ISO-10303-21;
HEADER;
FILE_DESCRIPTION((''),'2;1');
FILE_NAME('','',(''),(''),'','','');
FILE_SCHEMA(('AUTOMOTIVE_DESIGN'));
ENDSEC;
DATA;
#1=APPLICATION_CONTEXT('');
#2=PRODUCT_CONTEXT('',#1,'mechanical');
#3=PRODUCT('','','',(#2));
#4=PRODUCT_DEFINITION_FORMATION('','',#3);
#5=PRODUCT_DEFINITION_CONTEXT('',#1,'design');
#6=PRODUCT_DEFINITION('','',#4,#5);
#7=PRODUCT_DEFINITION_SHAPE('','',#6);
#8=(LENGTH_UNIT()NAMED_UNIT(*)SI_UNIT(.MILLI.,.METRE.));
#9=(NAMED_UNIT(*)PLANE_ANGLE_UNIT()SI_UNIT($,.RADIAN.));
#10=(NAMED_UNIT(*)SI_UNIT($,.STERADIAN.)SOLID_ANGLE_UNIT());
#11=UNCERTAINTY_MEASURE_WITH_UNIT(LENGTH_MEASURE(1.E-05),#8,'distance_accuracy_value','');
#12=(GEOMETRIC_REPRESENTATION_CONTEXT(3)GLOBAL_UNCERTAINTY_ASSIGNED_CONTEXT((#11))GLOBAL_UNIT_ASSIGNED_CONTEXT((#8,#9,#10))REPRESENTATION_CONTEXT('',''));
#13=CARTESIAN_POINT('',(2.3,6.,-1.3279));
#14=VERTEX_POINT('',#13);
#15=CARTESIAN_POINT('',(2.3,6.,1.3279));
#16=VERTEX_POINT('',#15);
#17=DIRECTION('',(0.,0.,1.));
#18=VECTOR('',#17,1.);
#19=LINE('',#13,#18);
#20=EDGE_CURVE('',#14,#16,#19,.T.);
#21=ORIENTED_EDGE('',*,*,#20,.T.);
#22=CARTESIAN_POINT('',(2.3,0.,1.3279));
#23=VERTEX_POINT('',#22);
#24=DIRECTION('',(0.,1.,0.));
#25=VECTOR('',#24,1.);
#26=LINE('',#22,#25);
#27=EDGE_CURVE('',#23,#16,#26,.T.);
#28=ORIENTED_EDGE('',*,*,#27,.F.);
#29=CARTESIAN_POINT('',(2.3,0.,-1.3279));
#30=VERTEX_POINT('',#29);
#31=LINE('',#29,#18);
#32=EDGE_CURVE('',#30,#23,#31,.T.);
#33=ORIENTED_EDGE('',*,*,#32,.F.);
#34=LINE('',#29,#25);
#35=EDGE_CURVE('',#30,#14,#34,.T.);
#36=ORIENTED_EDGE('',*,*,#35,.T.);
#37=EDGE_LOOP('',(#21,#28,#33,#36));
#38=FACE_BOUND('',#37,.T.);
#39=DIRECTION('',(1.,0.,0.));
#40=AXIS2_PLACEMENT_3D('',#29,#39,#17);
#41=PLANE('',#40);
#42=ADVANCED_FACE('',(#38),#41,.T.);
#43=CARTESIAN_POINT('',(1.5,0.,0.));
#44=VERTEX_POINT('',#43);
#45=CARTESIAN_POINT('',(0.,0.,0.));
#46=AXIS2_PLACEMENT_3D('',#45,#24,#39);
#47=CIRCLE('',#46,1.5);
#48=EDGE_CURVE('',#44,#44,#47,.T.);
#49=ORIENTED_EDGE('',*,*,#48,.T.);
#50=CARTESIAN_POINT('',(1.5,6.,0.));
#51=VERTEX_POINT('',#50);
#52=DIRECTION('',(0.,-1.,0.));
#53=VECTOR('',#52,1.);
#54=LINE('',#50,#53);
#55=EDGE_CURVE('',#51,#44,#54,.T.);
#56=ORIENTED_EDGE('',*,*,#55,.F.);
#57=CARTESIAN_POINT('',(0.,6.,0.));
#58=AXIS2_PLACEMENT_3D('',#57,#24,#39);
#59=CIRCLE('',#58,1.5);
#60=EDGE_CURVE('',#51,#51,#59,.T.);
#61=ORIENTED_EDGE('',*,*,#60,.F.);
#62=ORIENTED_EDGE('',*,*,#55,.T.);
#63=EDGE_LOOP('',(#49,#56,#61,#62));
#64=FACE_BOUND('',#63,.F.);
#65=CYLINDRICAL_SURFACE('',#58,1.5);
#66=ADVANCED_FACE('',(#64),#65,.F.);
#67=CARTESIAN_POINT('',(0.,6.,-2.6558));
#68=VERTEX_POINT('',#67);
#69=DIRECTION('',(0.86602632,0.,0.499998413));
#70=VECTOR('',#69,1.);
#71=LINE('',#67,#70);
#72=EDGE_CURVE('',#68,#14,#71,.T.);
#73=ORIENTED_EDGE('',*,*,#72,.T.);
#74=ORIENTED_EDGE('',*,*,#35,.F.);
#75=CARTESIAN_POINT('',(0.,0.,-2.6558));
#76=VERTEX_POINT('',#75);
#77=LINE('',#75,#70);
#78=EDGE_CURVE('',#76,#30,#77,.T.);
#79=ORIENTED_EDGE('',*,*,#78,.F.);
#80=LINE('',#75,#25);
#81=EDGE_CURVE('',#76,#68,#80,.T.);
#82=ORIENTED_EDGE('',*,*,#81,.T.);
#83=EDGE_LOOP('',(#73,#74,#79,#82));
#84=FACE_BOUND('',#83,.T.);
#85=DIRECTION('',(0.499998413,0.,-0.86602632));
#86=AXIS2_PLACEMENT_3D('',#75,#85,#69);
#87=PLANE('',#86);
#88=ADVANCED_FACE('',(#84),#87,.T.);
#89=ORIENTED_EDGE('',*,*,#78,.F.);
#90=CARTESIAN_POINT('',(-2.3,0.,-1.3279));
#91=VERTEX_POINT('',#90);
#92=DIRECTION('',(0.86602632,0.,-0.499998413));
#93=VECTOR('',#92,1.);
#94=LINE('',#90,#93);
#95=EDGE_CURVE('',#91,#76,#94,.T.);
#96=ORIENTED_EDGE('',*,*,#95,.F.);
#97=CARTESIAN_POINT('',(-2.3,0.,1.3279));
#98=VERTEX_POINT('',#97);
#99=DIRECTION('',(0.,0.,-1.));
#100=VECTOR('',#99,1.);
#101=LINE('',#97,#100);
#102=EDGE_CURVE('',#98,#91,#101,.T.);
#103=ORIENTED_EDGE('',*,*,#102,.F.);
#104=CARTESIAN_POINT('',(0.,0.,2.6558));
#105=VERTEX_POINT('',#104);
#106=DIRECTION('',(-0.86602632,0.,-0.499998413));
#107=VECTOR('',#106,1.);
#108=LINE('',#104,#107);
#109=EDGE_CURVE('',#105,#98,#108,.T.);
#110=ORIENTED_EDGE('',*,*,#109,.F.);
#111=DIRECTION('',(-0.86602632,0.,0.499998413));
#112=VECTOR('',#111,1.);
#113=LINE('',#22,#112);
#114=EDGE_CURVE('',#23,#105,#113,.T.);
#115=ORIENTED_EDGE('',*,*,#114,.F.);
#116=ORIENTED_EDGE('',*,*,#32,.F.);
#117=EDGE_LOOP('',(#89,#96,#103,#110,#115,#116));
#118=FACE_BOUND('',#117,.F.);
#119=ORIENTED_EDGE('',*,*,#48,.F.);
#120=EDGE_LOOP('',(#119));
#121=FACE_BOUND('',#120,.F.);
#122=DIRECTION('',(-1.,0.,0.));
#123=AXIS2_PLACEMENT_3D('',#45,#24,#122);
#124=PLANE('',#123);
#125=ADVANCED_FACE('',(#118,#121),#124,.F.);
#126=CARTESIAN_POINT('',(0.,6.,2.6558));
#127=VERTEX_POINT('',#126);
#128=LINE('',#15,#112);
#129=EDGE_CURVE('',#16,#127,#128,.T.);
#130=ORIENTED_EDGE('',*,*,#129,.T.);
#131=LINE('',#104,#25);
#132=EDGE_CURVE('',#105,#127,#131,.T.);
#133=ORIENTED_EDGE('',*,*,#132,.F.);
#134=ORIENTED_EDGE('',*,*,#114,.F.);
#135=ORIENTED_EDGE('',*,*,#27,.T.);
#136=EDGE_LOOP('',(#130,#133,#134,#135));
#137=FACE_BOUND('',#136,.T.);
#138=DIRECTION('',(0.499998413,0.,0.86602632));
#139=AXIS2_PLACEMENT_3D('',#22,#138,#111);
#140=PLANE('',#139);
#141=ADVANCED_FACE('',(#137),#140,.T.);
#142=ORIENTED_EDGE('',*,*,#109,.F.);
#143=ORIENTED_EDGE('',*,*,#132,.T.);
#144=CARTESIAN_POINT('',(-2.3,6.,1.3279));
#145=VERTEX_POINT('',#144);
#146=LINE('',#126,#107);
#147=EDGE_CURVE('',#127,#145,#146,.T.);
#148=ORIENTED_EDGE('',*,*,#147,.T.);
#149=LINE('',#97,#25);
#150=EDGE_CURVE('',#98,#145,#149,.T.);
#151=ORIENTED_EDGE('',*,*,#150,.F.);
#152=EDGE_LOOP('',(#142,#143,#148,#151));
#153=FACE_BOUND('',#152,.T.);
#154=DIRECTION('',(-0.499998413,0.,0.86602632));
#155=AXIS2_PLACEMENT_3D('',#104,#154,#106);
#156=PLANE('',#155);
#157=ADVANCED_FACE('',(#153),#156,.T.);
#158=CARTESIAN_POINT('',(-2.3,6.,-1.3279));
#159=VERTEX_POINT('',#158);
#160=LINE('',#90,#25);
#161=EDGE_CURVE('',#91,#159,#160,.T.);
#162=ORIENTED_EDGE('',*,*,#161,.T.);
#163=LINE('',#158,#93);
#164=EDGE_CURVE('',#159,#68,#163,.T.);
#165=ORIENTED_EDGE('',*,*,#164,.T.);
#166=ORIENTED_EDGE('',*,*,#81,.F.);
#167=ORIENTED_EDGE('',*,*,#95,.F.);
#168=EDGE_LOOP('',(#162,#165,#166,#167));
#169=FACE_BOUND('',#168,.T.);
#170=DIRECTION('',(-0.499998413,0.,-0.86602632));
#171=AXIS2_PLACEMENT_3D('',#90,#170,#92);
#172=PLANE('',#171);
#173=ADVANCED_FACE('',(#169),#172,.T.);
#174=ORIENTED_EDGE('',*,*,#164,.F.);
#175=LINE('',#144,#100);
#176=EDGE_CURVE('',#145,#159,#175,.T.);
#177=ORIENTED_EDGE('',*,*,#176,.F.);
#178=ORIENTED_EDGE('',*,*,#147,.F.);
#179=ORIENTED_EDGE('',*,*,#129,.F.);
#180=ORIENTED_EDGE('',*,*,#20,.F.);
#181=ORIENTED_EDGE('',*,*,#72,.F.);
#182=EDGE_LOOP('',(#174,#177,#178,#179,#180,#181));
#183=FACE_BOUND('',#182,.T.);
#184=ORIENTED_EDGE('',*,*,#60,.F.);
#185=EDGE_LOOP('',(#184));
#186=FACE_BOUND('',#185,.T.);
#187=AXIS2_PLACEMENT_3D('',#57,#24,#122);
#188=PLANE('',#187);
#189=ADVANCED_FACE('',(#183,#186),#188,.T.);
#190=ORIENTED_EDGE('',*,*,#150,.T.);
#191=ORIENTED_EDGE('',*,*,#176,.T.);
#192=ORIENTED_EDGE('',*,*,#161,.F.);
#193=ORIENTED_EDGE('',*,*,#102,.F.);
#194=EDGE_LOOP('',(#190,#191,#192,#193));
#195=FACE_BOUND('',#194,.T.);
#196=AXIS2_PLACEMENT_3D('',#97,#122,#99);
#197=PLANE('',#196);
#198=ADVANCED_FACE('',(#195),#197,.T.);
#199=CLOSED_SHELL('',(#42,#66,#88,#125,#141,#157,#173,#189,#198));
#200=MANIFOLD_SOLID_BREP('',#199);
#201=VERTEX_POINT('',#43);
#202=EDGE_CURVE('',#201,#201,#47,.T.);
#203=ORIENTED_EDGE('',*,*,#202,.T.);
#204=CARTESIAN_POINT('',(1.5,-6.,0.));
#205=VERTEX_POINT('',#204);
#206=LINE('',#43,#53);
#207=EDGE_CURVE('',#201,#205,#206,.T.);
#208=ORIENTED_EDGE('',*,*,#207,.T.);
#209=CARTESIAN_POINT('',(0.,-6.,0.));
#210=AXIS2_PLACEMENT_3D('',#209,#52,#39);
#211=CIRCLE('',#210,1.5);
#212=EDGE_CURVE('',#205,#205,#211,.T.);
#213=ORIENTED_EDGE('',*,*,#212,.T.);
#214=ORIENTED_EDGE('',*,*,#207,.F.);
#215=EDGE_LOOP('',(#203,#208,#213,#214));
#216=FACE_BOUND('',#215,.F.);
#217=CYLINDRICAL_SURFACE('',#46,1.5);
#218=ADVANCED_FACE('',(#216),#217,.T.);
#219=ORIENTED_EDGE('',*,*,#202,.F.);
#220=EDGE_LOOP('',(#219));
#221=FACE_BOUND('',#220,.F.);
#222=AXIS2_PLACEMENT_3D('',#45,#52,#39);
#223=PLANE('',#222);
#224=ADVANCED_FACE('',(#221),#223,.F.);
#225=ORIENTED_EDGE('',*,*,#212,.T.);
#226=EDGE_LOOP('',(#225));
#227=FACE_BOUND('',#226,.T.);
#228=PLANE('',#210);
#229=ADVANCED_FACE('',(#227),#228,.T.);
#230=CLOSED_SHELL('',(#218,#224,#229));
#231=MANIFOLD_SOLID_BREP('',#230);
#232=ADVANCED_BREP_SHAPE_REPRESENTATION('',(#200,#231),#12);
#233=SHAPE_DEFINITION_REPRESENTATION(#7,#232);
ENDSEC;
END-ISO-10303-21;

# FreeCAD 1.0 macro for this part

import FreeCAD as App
import Part
import Sketcher

V = App.Vector
Q = App.Units.Quantity

doc = App.newDocument("Part")
body = doc.addObject("PartDesign::Body", "Body")
body.AllowCompound = True

sketch1 = body.newObject("Sketcher::SketchObject", "Sketch")
sketch1.AttachmentSupport = (doc.getObject("XZ_Plane"), [""])
sketch1.MapMode = "FlatFace"
sketch1.addGeometry([
    Part.LineSegment(V(2.3, -1.3, 0), V(0, -2.7, 0)),
    Part.LineSegment(V(0, -2.7, 0), V(-2.3, -1.3, 0)),
    Part.LineSegment(V(-2.3, -1.3, 0), V(-2.3, 1.3, 0)),
    Part.LineSegment(V(-2.3, 1.3, 0), V(0, 2.7, 0)),
    Part.LineSegment(V(0, 2.7, 0), V(2.3, 1.3, 0)),
    Part.LineSegment(V(2.3, 1.3, 0), V(2.3, -1.3, 0)),
], False)
sketch1.addConstraint([
    Sketcher.Constraint("Coincident", 0, 2, 1, 1),
    Sketcher.Constraint("Coincident", 1, 2, 2, 1),
    Sketcher.Constraint("Coincident", 2, 2, 3, 1),
    Sketcher.Constraint("Coincident", 3, 2, 4, 1),
    Sketcher.Constraint("Coincident", 4, 2, 5, 1),
    Sketcher.Constraint("Coincident", 5, 2, 0, 1),
    Sketcher.Constraint("Vertical", 2),
    Sketcher.Constraint("Vertical", 5),
    Sketcher.Constraint("Symmetric", 0, 2, 3, 2, -1, 1),
    Sketcher.Constraint("Symmetric", 1, 2, 4, 2, -1, 1),
    Sketcher.Constraint("PointOnObject", 0, 2, -2),
    Sketcher.Constraint("Parallel", 0, 3),
    Sketcher.Constraint("Horizontal", 2, 2, 4, 2),
    Sketcher.Constraint("DistanceX", 2, 2, 4, 2, 4.6),
    Sketcher.Constraint("Angle", 0, Q("-150 deg")),
    Sketcher.Constraint("DistanceY", 2, 1, 2, 2, 2.6558),
])
pad1 = body.newObject("PartDesign::Pad", "Pad")
pad1.Profile = sketch1
pad1.Length = 6
pad1.Reversed = True

sketch2 = body.newObject("Sketcher::SketchObject", "Sketch001")
sketch2.AttachmentSupport = (doc.getObject("XZ_Plane"), [""])
sketch2.MapMode = "FlatFace"
sketch2.AttachmentOffset = App.Placement(V(0, 0, -6), App.Rotation())
sketch2.addGeometry(Part.Circle(V(0, 0, 0), V(0, 0, 1), 1.5), False)
sketch2.addConstraint([
    Sketcher.Constraint("Coincident", 0, 3, -1, 1),
    Sketcher.Constraint("Diameter", 0, 3.0),
])
pocket1 = body.newObject("PartDesign::Pocket", "Pocket")
pocket1.Profile = sketch2
pocket1.Length = 15
pocket1.Reversed = True

sketch3 = body.newObject("Sketcher::SketchObject", "Sketch002")
sketch3.AttachmentSupport = (doc.getObject("XZ_Plane"), [""])
sketch3.MapMode = "FlatFace"
sketch3.addGeometry(Part.Circle(V(0, 0, 0), V(0, 0, 1), 1.5), False)
sketch3.addConstraint([
    Sketcher.Constraint("Coincident", 0, 3, -1, 1),
    Sketcher.Constraint("Diameter", 0, 3.0),
])
pad2 = body.newObject("PartDesign::Pad", "Pad001")
pad2.Profile = sketch3
pad2.Length = 6

doc.recompute()
